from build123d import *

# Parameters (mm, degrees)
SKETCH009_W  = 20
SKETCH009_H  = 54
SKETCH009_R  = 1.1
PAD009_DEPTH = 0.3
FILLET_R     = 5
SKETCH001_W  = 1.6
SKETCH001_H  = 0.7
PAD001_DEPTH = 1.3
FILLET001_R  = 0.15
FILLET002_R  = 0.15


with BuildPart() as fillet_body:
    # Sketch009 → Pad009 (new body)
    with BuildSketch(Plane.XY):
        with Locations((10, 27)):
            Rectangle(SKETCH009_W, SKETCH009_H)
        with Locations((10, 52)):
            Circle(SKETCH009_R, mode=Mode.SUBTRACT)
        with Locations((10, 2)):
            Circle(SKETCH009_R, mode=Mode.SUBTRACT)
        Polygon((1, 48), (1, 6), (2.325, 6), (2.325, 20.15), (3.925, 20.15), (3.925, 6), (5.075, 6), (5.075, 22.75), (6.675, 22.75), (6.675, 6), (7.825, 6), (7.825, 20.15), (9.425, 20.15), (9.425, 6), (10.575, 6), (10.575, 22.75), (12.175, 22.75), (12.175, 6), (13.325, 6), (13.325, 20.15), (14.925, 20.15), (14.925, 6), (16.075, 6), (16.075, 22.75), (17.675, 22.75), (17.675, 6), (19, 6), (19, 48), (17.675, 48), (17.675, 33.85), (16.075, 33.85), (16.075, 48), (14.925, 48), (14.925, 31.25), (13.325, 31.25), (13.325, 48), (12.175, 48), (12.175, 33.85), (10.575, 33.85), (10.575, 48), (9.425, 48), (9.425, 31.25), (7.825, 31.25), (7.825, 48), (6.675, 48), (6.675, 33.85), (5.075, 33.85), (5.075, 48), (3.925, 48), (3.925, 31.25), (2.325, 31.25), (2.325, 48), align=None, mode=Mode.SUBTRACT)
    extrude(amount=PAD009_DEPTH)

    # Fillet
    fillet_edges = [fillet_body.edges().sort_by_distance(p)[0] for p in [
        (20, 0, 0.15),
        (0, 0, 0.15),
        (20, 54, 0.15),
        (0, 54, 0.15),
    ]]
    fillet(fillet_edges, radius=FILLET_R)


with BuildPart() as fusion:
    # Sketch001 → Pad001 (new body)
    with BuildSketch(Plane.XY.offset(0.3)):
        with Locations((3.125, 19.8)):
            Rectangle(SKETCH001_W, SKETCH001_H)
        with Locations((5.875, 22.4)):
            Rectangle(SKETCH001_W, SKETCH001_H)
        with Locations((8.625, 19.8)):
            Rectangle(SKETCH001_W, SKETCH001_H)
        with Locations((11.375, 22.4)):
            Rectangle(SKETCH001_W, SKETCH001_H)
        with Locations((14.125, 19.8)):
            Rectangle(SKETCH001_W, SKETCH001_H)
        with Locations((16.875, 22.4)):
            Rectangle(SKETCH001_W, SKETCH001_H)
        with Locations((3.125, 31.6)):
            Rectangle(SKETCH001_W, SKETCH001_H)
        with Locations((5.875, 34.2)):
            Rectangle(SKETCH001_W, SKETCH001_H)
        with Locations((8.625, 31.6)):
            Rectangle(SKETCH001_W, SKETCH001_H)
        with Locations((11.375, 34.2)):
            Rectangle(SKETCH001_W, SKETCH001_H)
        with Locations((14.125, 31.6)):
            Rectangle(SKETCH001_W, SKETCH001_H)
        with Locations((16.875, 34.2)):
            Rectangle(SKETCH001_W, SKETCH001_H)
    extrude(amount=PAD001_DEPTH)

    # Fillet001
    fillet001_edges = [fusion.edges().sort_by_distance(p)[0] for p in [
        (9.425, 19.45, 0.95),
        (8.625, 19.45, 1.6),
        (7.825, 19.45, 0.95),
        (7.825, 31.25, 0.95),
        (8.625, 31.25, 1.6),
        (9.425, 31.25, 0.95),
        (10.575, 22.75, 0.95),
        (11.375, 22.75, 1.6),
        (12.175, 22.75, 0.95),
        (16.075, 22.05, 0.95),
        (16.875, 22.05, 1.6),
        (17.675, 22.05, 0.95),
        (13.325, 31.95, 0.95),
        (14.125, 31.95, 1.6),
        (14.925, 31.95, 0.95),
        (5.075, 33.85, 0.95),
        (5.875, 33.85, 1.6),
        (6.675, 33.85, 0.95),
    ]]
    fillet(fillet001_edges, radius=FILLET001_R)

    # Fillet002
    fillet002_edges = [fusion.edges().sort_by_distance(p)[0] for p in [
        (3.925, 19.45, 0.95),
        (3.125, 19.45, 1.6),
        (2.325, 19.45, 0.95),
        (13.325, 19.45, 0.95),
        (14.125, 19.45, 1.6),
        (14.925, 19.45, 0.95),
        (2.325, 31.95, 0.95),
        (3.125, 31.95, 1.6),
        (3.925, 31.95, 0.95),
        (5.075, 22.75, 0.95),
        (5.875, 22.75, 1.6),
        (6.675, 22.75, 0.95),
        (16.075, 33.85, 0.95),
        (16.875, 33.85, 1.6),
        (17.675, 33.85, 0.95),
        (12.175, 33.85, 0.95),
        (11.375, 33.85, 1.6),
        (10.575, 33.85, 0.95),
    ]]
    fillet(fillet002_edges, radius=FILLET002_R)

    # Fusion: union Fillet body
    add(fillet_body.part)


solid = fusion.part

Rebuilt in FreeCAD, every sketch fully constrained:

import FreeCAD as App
import Part
import Sketcher
from FreeCAD import Vector
Q = App.Units.Quantity


def edges_at(feature, points):
    """Names of the edges that pass closest to the given points."""
    edges = feature.Shape.Edges
    near = lambda p: min(range(len(edges)), key=lambda i: edges[i].distToShape(Part.Vertex(*p))[0])
    return sorted({f"Edge{near(p) + 1}" for p in points})


def add_polygon(sketch, points):
    """Adds a closed chain of lines whose ends are joined by coincident constraints."""
    first, n = sketch.GeometryCount, len(points)
    for a, b in zip(points, points[1:] + points[:1]):
        sketch.addGeometry(Part.LineSegment(App.Vector(*a, 0), App.Vector(*b, 0)), False)
    for i in range(n):
        sketch.addConstraint(Sketcher.Constraint("Coincident", first + i, 2, first + (i + 1) % n, 1))

doc = App.newDocument("Part")
body = doc.addObject("PartDesign::Body", "Body")

# Sketch on XY plane
sketch1 = body.newObject("Sketcher::SketchObject", "Sketch")
sketch1.AttachmentSupport = (doc.getObject("XY_Plane"), [""])
sketch1.MapMode = "FlatFace"
add_polygon(sketch1, [(0, 54), (0, 0), (20, 0), (20, 54)])  # lines 0-3
sketch1.addGeometry(Part.Circle(Vector(10, 2, 0), Vector(0, 0, 1), 1.1), False)  # 4
add_polygon(sketch1, [(1, 6), (1, 48), (2.325, 48), (2.325, 31.25), (3.925, 31.25), (3.925, 48), (5.075, 48), (5.075, 33.85), (6.675, 33.85), (6.675, 48), (7.825, 48), (7.825, 31.25), (9.425, 31.25), (9.425, 48), (10.575, 48), (10.575, 33.85), (12.175, 33.85), (12.175, 48), (13.325, 48), (13.325, 31.25), (14.925, 31.25), (14.925, 48), (16.075, 48), (16.075, 33.85), (17.675, 33.85), (17.675, 48), (19, 48), (19, 6), (17.675, 6), (17.675, 22.75), (16.075, 22.75), (16.075, 6), (14.925, 6), (14.925, 20.15), (13.325, 20.15), (13.325, 6), (12.175, 6), (12.175, 22.75), (10.575, 22.75), (10.575, 6), (9.425, 6), (9.425, 20.15), (7.825, 20.15), (7.825, 6), (6.675, 6), (6.675, 22.75), (5.075, 22.75), (5.075, 6), (3.925, 6), (3.925, 20.15), (2.325, 20.15), (2.325, 6)])  # lines 5-56
sketch1.addGeometry(Part.Circle(Vector(10, 52, 0), Vector(0, 0, 1), 1.1), False)  # 57
sketch1.addConstraint([
    Sketcher.Constraint("Vertical", 0),
    Sketcher.Constraint("Horizontal", 1),
    Sketcher.Constraint("Vertical", 2),
    Sketcher.Constraint("Horizontal", 3),
    Sketcher.Constraint("Vertical", 5),
    Sketcher.Constraint("Horizontal", 6),
    Sketcher.Constraint("Vertical", 7),
    Sketcher.Constraint("Horizontal", 8),
    Sketcher.Constraint("Vertical", 9),
    Sketcher.Constraint("Horizontal", 10),
    Sketcher.Constraint("Vertical", 11),
    Sketcher.Constraint("Horizontal", 12),
    Sketcher.Constraint("Vertical", 13),
    Sketcher.Constraint("Horizontal", 14),
    Sketcher.Constraint("Vertical", 15),
    Sketcher.Constraint("Horizontal", 16),
    Sketcher.Constraint("Vertical", 17),
    Sketcher.Constraint("Horizontal", 18),
    Sketcher.Constraint("Vertical", 19),
    Sketcher.Constraint("Horizontal", 20),
    Sketcher.Constraint("Vertical", 21),
    Sketcher.Constraint("Horizontal", 22),
    Sketcher.Constraint("Vertical", 23),
    Sketcher.Constraint("Horizontal", 24),
    Sketcher.Constraint("Vertical", 25),
    Sketcher.Constraint("Horizontal", 26),
    Sketcher.Constraint("Vertical", 27),
    Sketcher.Constraint("Horizontal", 28),
    Sketcher.Constraint("Vertical", 29),
    Sketcher.Constraint("Horizontal", 30),
    Sketcher.Constraint("Vertical", 31),
    Sketcher.Constraint("Horizontal", 32),
    Sketcher.Constraint("Vertical", 33),
    Sketcher.Constraint("Horizontal", 34),
    Sketcher.Constraint("Vertical", 35),
    Sketcher.Constraint("Horizontal", 36),
    Sketcher.Constraint("Vertical", 37),
    Sketcher.Constraint("Horizontal", 38),
    Sketcher.Constraint("Vertical", 39),
    Sketcher.Constraint("Horizontal", 40),
    Sketcher.Constraint("Vertical", 41),
    Sketcher.Constraint("Horizontal", 42),
    Sketcher.Constraint("Vertical", 43),
    Sketcher.Constraint("Horizontal", 44),
    Sketcher.Constraint("Vertical", 45),
    Sketcher.Constraint("Horizontal", 46),
    Sketcher.Constraint("Vertical", 47),
    Sketcher.Constraint("Horizontal", 48),
    Sketcher.Constraint("Vertical", 49),
    Sketcher.Constraint("Horizontal", 50),
    Sketcher.Constraint("Vertical", 51),
    Sketcher.Constraint("Horizontal", 52),
    Sketcher.Constraint("Vertical", 53),
    Sketcher.Constraint("Horizontal", 54),
    Sketcher.Constraint("Vertical", 55),
    Sketcher.Constraint("Horizontal", 56),
    Sketcher.Constraint("Coincident", 0, 2, -1, 1),
    Sketcher.Constraint("Equal", 4, 57),
    Sketcher.Constraint("Horizontal", 6, 2, 9, 2),
    Sketcher.Constraint("Horizontal", 10, 2, 13, 2),
    Sketcher.Constraint("Horizontal", 8, 2, 15, 2),
    Sketcher.Constraint("Horizontal", 14, 2, 17, 2),
    Sketcher.Constraint("Horizontal", 12, 2, 19, 2),
    Sketcher.Constraint("Horizontal", 18, 2, 21, 2),
    Sketcher.Constraint("Horizontal", 16, 2, 23, 2),
    Sketcher.Constraint("Horizontal", 22, 2, 25, 2),
    Sketcher.Constraint("Horizontal", 20, 2, 27, 2),
    Sketcher.Constraint("Horizontal", 26, 2, 29, 2),
    Sketcher.Constraint("Horizontal", 32, 2, 35, 2),
    Sketcher.Constraint("Horizontal", 36, 2, 39, 2),
    Sketcher.Constraint("Horizontal", 34, 2, 41, 2),
    Sketcher.Constraint("Horizontal", 40, 2, 43, 2),
    Sketcher.Constraint("Horizontal", 38, 2, 45, 2),
    Sketcher.Constraint("Horizontal", 44, 2, 47, 2),
    Sketcher.Constraint("Horizontal", 42, 2, 49, 2),
    Sketcher.Constraint("Horizontal", 48, 2, 51, 2),
    Sketcher.Constraint("Horizontal", 46, 2, 53, 2),
    Sketcher.Constraint("Horizontal", 52, 2, 55, 2),
    Sketcher.Constraint("Vertical", 4, 3, 57, 3),
    Sketcher.Constraint("Vertical", 29, 2, 32, 2),
    Sketcher.Constraint("Vertical", 27, 2, 34, 2),
    Sketcher.Constraint("Vertical", 25, 2, 36, 2),
    Sketcher.Constraint("Vertical", 23, 2, 38, 2),
    Sketcher.Constraint("Vertical", 21, 2, 40, 2),
    Sketcher.Constraint("Vertical", 19, 2, 42, 2),
    Sketcher.Constraint("Vertical", 17, 2, 44, 2),
    Sketcher.Constraint("Vertical", 15, 2, 46, 2),
    Sketcher.Constraint("Vertical", 13, 2, 48, 2),
    Sketcher.Constraint("Vertical", 11, 2, 50, 2),
    Sketcher.Constraint("Vertical", 9, 2, 52, 2),
    Sketcher.Constraint("Vertical", 7, 2, 54, 2),
    Sketcher.Constraint("Equal", 8, 12),
    Sketcher.Constraint("Equal", 10, 14),
    Sketcher.Constraint("Equal", 12, 16),
    Sketcher.Constraint("Equal", 14, 18),
    Sketcher.Constraint("Equal", 16, 20),
    Sketcher.Constraint("Equal", 18, 22),
    Sketcher.Constraint("Equal", 20, 24),
    Sketcher.Constraint("Equal", 22, 26),
    Sketcher.Constraint("Equal", 24, 28),
    Sketcher.Constraint("Equal", 6, 30),
    Sketcher.Constraint("Equal", 25, 33),
    Sketcher.Constraint("Equal", 29, 37),
    Sketcher.Constraint("Diameter", 4, Q("2.2 mm")),
    Sketcher.Constraint("DistanceX", 1, 1, 1, 2, Q("20 mm")),
    Sketcher.Constraint("DistanceY", 0, 2, 0, 1, Q("54 mm")),
    Sketcher.Constraint("DistanceY", 5, 1, 5, 2, Q("42 mm")),
    Sketcher.Constraint("DistanceX", 8, 1, 8, 2, Q("1.6 mm")),
    Sketcher.Constraint("DistanceX", -1, 1, 4, 3, Q("10 mm")),
    Sketcher.Constraint("DistanceY", -1, 1, 4, 3, Q("2 mm")),
    Sketcher.Constraint("DistanceY", -1, 1, 57, 3, Q("52 mm")),
    Sketcher.Constraint("DistanceX", -1, 1, 5, 2, Q("1 mm")),
    Sketcher.Constraint("DistanceY", -1, 1, 5, 2, Q("48 mm")),
    Sketcher.Constraint("DistanceX", -1, 1, 30, 2, Q("19 mm")),
    Sketcher.Constraint("DistanceX", 10, 1, 10, 2, Q("1.15 mm")),
    Sketcher.Constraint("DistanceY", 7, 2, 7, 1, Q("16.75 mm")),
    Sketcher.Constraint("DistanceY", 11, 2, 11, 1, Q("14.15 mm")),
])
pad1 = body.newObject("PartDesign::Pad", "Pad")
pad1.Profile = sketch1
pad1.Length = 0.3
doc.recompute()

fillet = body.newObject("PartDesign::Fillet", "Fillet")
fillet.Base = (pad1, edges_at(pad1, [
    (20, 0, 0.15),
    (0, 0, 0.15),
    (20, 54, 0.15),
    (0, 54, 0.15),
]))
fillet.Radius = 5
body2 = doc.addObject("PartDesign::Body", "Body001")
body2.AllowCompound = True

# Sketch on XY plane
sketch2 = body2.newObject("Sketcher::SketchObject", "Sketch001")
sketch2.AttachmentSupport = (doc.getObject("XY_Plane001"), [""])
sketch2.MapMode = "FlatFace"
sketch2.AttachmentOffset = App.Placement(Vector(0, 0, 0.3), App.Rotation())
add_polygon(sketch2, [(2.325, 20.15), (2.325, 19.45), (3.925, 19.45), (3.925, 20.15)])  # lines 0-3
add_polygon(sketch2, [(5.075, 22.75), (5.075, 22.05), (6.675, 22.05), (6.675, 22.75)])  # lines 4-7
add_polygon(sketch2, [(7.825, 20.15), (7.825, 19.45), (9.425, 19.45), (9.425, 20.15)])  # lines 8-11
add_polygon(sketch2, [(10.575, 22.75), (10.575, 22.05), (12.175, 22.05), (12.175, 22.75)])  # lines 12-15
add_polygon(sketch2, [(13.325, 20.15), (13.325, 19.45), (14.925, 19.45), (14.925, 20.15)])  # lines 16-19
add_polygon(sketch2, [(16.075, 22.75), (16.075, 22.05), (17.675, 22.05), (17.675, 22.75)])  # lines 20-23
add_polygon(sketch2, [(2.325, 31.95), (2.325, 31.25), (3.925, 31.25), (3.925, 31.95)])  # lines 24-27
add_polygon(sketch2, [(5.075, 34.55), (5.075, 33.85), (6.675, 33.85), (6.675, 34.55)])  # lines 28-31
add_polygon(sketch2, [(7.825, 31.95), (7.825, 31.25), (9.425, 31.25), (9.425, 31.95)])  # lines 32-35
add_polygon(sketch2, [(10.575, 34.55), (10.575, 33.85), (12.175, 33.85), (12.175, 34.55)])  # lines 36-39
add_polygon(sketch2, [(13.325, 31.95), (13.325, 31.25), (14.925, 31.25), (14.925, 31.95)])  # lines 40-43
add_polygon(sketch2, [(16.075, 34.55), (16.075, 33.85), (17.675, 33.85), (17.675, 34.55)])  # lines 44-47
sketch2.addConstraint([
    Sketcher.Constraint("Vertical", 0),
    Sketcher.Constraint("Horizontal", 1),
    Sketcher.Constraint("Vertical", 2),
    Sketcher.Constraint("Horizontal", 3),
    Sketcher.Constraint("Vertical", 4),
    Sketcher.Constraint("Horizontal", 5),
    Sketcher.Constraint("Vertical", 6),
    Sketcher.Constraint("Horizontal", 7),
    Sketcher.Constraint("Vertical", 8),
    Sketcher.Constraint("Horizontal", 9),
    Sketcher.Constraint("Vertical", 10),
    Sketcher.Constraint("Horizontal", 11),
    Sketcher.Constraint("Vertical", 12),
    Sketcher.Constraint("Horizontal", 13),
    Sketcher.Constraint("Vertical", 14),
    Sketcher.Constraint("Horizontal", 15),
    Sketcher.Constraint("Vertical", 16),
    Sketcher.Constraint("Horizontal", 17),
    Sketcher.Constraint("Vertical", 18),
    Sketcher.Constraint("Horizontal", 19),
    Sketcher.Constraint("Vertical", 20),
    Sketcher.Constraint("Horizontal", 21),
    Sketcher.Constraint("Vertical", 22),
    Sketcher.Constraint("Horizontal", 23),
    Sketcher.Constraint("Vertical", 24),
    Sketcher.Constraint("Horizontal", 25),
    Sketcher.Constraint("Vertical", 26),
    Sketcher.Constraint("Horizontal", 27),
    Sketcher.Constraint("Vertical", 28),
    Sketcher.Constraint("Horizontal", 29),
    Sketcher.Constraint("Vertical", 30),
    Sketcher.Constraint("Horizontal", 31),
    Sketcher.Constraint("Vertical", 32),
    Sketcher.Constraint("Horizontal", 33),
    Sketcher.Constraint("Vertical", 34),
    Sketcher.Constraint("Horizontal", 35),
    Sketcher.Constraint("Vertical", 36),
    Sketcher.Constraint("Horizontal", 37),
    Sketcher.Constraint("Vertical", 38),
    Sketcher.Constraint("Horizontal", 39),
    Sketcher.Constraint("Vertical", 40),
    Sketcher.Constraint("Horizontal", 41),
    Sketcher.Constraint("Vertical", 42),
    Sketcher.Constraint("Horizontal", 43),
    Sketcher.Constraint("Vertical", 44),
    Sketcher.Constraint("Horizontal", 45),
    Sketcher.Constraint("Vertical", 46),
    Sketcher.Constraint("Horizontal", 47),
    Sketcher.Constraint("Horizontal", 1, 2, 8, 2),
    Sketcher.Constraint("Horizontal", 3, 2, 10, 2),
    Sketcher.Constraint("Horizontal", 5, 2, 12, 2),
    Sketcher.Constraint("Horizontal", 7, 2, 14, 2),
    Sketcher.Constraint("Horizontal", 9, 2, 16, 2),
    Sketcher.Constraint("Horizontal", 11, 2, 18, 2),
    Sketcher.Constraint("Horizontal", 13, 2, 20, 2),
    Sketcher.Constraint("Horizontal", 15, 2, 22, 2),
    Sketcher.Constraint("Horizontal", 25, 2, 32, 2),
    Sketcher.Constraint("Horizontal", 27, 2, 34, 2),
    Sketcher.Constraint("Horizontal", 29, 2, 36, 2),
    Sketcher.Constraint("Horizontal", 31, 2, 38, 2),
    Sketcher.Constraint("Horizontal", 33, 2, 40, 2),
    Sketcher.Constraint("Horizontal", 35, 2, 42, 2),
    Sketcher.Constraint("Horizontal", 37, 2, 44, 2),
    Sketcher.Constraint("Horizontal", 39, 2, 46, 2),
    Sketcher.Constraint("Vertical", 3, 2, 24, 2),
    Sketcher.Constraint("Vertical", 2, 2, 25, 2),
    Sketcher.Constraint("Vertical", 7, 2, 28, 2),
    Sketcher.Constraint("Vertical", 6, 2, 29, 2),
    Sketcher.Constraint("Vertical", 11, 2, 32, 2),
    Sketcher.Constraint("Vertical", 10, 2, 33, 2),
    Sketcher.Constraint("Vertical", 15, 2, 36, 2),
    Sketcher.Constraint("Vertical", 14, 2, 37, 2),
    Sketcher.Constraint("Vertical", 19, 2, 40, 2),
    Sketcher.Constraint("Vertical", 18, 2, 41, 2),
    Sketcher.Constraint("Vertical", 23, 2, 44, 2),
    Sketcher.Constraint("Vertical", 22, 2, 45, 2),
    Sketcher.Constraint("Equal", 3, 5),
    Sketcher.Constraint("Equal", 7, 9),
    Sketcher.Constraint("Equal", 11, 13),
    Sketcher.Constraint("Equal", 15, 17),
    Sketcher.Constraint("Equal", 19, 21),
    Sketcher.Constraint("Equal", 2, 4),
    Sketcher.Constraint("Equal", 22, 24),
    Sketcher.Constraint("Equal", 26, 28),
    Sketcher.Constraint("DistanceX", 1, 1, 1, 2, Q("1.6 mm")),
    Sketcher.Constraint("DistanceY", 0, 2, 0, 1, Q("0.7 mm")),
    Sketcher.Constraint("DistanceY", 2, 2, 4, 2, Q("1.9 mm")),
    Sketcher.Constraint("DistanceX", 1, 2, 8, 2, Q("3.9 mm")),
    Sketcher.Constraint("DistanceX", 5, 2, 12, 2, Q("3.9 mm")),
    Sketcher.Constraint("DistanceX", 9, 2, 16, 2, Q("3.9 mm")),
    Sketcher.Constraint("DistanceX", 13, 2, 20, 2, Q("3.9 mm")),
    Sketcher.Constraint("DistanceY", 7, 2, 24, 2, Q("8.5 mm")),
    Sketcher.Constraint("DistanceY", 26, 2, 28, 2, Q("1.9 mm")),
    Sketcher.Constraint("DistanceY", -1, 1, 0, 2, Q("19.45 mm")),
    Sketcher.Constraint("DistanceX", 2, 2, 4, 2, Q("1.15 mm")),
    Sketcher.Constraint("DistanceX", -1, 1, 0, 2, Q("2.325 mm")),
])
pad2 = body2.newObject("PartDesign::Pad", "Pad001")
pad2.Profile = sketch2
pad2.Length = 1.3
doc.recompute()

fillet2 = body2.newObject("PartDesign::Fillet", "Fillet001")
fillet2.Base = (pad2, edges_at(pad2, [
    (9.425, 19.45, 0.95),
    (8.625, 19.45, 1.6),
    (7.825, 19.45, 0.95),
    (7.825, 31.25, 0.95),
    (8.625, 31.25, 1.6),
    (9.425, 31.25, 0.95),
    (10.575, 22.75, 0.95),
    (11.375, 22.75, 1.6),
    (12.175, 22.75, 0.95),
    (16.075, 22.05, 0.95),
    (16.875, 22.05, 1.6),
    (17.675, 22.05, 0.95),
    (13.325, 31.95, 0.95),
    (14.125, 31.95, 1.6),
    (14.925, 31.95, 0.95),
    (5.075, 33.85, 0.95),
    (5.875, 33.85, 1.6),
    (6.675, 33.85, 0.95),
]))
fillet2.Radius = 0.15
doc.recompute()

fillet3 = body2.newObject("PartDesign::Fillet", "Fillet002")
fillet3.Base = (fillet2, edges_at(fillet2, [
    (3.925, 19.45, 0.95),
    (3.125, 19.45, 1.6),
    (2.325, 19.45, 0.95),
    (13.325, 19.45, 0.95),
    (14.125, 19.45, 1.6),
    (14.925, 19.45, 0.95),
    (2.325, 31.95, 0.95),
    (3.125, 31.95, 1.6),
    (3.925, 31.95, 0.95),
    (5.075, 22.75, 0.95),
    (5.875, 22.75, 1.6),
    (6.675, 22.75, 0.95),
    (16.075, 33.85, 0.95),
    (16.875, 33.85, 1.6),
    (17.675, 33.85, 0.95),
    (12.175, 33.85, 0.95),
    (11.375, 33.85, 1.6),
    (10.575, 33.85, 0.95),
]))
fillet3.Radius = 0.15
doc.recompute()

boolean = body2.newObject("PartDesign::Boolean", "Boolean")
boolean.Type = "Fuse"
boolean.addObjects([body])

doc.recompute()
